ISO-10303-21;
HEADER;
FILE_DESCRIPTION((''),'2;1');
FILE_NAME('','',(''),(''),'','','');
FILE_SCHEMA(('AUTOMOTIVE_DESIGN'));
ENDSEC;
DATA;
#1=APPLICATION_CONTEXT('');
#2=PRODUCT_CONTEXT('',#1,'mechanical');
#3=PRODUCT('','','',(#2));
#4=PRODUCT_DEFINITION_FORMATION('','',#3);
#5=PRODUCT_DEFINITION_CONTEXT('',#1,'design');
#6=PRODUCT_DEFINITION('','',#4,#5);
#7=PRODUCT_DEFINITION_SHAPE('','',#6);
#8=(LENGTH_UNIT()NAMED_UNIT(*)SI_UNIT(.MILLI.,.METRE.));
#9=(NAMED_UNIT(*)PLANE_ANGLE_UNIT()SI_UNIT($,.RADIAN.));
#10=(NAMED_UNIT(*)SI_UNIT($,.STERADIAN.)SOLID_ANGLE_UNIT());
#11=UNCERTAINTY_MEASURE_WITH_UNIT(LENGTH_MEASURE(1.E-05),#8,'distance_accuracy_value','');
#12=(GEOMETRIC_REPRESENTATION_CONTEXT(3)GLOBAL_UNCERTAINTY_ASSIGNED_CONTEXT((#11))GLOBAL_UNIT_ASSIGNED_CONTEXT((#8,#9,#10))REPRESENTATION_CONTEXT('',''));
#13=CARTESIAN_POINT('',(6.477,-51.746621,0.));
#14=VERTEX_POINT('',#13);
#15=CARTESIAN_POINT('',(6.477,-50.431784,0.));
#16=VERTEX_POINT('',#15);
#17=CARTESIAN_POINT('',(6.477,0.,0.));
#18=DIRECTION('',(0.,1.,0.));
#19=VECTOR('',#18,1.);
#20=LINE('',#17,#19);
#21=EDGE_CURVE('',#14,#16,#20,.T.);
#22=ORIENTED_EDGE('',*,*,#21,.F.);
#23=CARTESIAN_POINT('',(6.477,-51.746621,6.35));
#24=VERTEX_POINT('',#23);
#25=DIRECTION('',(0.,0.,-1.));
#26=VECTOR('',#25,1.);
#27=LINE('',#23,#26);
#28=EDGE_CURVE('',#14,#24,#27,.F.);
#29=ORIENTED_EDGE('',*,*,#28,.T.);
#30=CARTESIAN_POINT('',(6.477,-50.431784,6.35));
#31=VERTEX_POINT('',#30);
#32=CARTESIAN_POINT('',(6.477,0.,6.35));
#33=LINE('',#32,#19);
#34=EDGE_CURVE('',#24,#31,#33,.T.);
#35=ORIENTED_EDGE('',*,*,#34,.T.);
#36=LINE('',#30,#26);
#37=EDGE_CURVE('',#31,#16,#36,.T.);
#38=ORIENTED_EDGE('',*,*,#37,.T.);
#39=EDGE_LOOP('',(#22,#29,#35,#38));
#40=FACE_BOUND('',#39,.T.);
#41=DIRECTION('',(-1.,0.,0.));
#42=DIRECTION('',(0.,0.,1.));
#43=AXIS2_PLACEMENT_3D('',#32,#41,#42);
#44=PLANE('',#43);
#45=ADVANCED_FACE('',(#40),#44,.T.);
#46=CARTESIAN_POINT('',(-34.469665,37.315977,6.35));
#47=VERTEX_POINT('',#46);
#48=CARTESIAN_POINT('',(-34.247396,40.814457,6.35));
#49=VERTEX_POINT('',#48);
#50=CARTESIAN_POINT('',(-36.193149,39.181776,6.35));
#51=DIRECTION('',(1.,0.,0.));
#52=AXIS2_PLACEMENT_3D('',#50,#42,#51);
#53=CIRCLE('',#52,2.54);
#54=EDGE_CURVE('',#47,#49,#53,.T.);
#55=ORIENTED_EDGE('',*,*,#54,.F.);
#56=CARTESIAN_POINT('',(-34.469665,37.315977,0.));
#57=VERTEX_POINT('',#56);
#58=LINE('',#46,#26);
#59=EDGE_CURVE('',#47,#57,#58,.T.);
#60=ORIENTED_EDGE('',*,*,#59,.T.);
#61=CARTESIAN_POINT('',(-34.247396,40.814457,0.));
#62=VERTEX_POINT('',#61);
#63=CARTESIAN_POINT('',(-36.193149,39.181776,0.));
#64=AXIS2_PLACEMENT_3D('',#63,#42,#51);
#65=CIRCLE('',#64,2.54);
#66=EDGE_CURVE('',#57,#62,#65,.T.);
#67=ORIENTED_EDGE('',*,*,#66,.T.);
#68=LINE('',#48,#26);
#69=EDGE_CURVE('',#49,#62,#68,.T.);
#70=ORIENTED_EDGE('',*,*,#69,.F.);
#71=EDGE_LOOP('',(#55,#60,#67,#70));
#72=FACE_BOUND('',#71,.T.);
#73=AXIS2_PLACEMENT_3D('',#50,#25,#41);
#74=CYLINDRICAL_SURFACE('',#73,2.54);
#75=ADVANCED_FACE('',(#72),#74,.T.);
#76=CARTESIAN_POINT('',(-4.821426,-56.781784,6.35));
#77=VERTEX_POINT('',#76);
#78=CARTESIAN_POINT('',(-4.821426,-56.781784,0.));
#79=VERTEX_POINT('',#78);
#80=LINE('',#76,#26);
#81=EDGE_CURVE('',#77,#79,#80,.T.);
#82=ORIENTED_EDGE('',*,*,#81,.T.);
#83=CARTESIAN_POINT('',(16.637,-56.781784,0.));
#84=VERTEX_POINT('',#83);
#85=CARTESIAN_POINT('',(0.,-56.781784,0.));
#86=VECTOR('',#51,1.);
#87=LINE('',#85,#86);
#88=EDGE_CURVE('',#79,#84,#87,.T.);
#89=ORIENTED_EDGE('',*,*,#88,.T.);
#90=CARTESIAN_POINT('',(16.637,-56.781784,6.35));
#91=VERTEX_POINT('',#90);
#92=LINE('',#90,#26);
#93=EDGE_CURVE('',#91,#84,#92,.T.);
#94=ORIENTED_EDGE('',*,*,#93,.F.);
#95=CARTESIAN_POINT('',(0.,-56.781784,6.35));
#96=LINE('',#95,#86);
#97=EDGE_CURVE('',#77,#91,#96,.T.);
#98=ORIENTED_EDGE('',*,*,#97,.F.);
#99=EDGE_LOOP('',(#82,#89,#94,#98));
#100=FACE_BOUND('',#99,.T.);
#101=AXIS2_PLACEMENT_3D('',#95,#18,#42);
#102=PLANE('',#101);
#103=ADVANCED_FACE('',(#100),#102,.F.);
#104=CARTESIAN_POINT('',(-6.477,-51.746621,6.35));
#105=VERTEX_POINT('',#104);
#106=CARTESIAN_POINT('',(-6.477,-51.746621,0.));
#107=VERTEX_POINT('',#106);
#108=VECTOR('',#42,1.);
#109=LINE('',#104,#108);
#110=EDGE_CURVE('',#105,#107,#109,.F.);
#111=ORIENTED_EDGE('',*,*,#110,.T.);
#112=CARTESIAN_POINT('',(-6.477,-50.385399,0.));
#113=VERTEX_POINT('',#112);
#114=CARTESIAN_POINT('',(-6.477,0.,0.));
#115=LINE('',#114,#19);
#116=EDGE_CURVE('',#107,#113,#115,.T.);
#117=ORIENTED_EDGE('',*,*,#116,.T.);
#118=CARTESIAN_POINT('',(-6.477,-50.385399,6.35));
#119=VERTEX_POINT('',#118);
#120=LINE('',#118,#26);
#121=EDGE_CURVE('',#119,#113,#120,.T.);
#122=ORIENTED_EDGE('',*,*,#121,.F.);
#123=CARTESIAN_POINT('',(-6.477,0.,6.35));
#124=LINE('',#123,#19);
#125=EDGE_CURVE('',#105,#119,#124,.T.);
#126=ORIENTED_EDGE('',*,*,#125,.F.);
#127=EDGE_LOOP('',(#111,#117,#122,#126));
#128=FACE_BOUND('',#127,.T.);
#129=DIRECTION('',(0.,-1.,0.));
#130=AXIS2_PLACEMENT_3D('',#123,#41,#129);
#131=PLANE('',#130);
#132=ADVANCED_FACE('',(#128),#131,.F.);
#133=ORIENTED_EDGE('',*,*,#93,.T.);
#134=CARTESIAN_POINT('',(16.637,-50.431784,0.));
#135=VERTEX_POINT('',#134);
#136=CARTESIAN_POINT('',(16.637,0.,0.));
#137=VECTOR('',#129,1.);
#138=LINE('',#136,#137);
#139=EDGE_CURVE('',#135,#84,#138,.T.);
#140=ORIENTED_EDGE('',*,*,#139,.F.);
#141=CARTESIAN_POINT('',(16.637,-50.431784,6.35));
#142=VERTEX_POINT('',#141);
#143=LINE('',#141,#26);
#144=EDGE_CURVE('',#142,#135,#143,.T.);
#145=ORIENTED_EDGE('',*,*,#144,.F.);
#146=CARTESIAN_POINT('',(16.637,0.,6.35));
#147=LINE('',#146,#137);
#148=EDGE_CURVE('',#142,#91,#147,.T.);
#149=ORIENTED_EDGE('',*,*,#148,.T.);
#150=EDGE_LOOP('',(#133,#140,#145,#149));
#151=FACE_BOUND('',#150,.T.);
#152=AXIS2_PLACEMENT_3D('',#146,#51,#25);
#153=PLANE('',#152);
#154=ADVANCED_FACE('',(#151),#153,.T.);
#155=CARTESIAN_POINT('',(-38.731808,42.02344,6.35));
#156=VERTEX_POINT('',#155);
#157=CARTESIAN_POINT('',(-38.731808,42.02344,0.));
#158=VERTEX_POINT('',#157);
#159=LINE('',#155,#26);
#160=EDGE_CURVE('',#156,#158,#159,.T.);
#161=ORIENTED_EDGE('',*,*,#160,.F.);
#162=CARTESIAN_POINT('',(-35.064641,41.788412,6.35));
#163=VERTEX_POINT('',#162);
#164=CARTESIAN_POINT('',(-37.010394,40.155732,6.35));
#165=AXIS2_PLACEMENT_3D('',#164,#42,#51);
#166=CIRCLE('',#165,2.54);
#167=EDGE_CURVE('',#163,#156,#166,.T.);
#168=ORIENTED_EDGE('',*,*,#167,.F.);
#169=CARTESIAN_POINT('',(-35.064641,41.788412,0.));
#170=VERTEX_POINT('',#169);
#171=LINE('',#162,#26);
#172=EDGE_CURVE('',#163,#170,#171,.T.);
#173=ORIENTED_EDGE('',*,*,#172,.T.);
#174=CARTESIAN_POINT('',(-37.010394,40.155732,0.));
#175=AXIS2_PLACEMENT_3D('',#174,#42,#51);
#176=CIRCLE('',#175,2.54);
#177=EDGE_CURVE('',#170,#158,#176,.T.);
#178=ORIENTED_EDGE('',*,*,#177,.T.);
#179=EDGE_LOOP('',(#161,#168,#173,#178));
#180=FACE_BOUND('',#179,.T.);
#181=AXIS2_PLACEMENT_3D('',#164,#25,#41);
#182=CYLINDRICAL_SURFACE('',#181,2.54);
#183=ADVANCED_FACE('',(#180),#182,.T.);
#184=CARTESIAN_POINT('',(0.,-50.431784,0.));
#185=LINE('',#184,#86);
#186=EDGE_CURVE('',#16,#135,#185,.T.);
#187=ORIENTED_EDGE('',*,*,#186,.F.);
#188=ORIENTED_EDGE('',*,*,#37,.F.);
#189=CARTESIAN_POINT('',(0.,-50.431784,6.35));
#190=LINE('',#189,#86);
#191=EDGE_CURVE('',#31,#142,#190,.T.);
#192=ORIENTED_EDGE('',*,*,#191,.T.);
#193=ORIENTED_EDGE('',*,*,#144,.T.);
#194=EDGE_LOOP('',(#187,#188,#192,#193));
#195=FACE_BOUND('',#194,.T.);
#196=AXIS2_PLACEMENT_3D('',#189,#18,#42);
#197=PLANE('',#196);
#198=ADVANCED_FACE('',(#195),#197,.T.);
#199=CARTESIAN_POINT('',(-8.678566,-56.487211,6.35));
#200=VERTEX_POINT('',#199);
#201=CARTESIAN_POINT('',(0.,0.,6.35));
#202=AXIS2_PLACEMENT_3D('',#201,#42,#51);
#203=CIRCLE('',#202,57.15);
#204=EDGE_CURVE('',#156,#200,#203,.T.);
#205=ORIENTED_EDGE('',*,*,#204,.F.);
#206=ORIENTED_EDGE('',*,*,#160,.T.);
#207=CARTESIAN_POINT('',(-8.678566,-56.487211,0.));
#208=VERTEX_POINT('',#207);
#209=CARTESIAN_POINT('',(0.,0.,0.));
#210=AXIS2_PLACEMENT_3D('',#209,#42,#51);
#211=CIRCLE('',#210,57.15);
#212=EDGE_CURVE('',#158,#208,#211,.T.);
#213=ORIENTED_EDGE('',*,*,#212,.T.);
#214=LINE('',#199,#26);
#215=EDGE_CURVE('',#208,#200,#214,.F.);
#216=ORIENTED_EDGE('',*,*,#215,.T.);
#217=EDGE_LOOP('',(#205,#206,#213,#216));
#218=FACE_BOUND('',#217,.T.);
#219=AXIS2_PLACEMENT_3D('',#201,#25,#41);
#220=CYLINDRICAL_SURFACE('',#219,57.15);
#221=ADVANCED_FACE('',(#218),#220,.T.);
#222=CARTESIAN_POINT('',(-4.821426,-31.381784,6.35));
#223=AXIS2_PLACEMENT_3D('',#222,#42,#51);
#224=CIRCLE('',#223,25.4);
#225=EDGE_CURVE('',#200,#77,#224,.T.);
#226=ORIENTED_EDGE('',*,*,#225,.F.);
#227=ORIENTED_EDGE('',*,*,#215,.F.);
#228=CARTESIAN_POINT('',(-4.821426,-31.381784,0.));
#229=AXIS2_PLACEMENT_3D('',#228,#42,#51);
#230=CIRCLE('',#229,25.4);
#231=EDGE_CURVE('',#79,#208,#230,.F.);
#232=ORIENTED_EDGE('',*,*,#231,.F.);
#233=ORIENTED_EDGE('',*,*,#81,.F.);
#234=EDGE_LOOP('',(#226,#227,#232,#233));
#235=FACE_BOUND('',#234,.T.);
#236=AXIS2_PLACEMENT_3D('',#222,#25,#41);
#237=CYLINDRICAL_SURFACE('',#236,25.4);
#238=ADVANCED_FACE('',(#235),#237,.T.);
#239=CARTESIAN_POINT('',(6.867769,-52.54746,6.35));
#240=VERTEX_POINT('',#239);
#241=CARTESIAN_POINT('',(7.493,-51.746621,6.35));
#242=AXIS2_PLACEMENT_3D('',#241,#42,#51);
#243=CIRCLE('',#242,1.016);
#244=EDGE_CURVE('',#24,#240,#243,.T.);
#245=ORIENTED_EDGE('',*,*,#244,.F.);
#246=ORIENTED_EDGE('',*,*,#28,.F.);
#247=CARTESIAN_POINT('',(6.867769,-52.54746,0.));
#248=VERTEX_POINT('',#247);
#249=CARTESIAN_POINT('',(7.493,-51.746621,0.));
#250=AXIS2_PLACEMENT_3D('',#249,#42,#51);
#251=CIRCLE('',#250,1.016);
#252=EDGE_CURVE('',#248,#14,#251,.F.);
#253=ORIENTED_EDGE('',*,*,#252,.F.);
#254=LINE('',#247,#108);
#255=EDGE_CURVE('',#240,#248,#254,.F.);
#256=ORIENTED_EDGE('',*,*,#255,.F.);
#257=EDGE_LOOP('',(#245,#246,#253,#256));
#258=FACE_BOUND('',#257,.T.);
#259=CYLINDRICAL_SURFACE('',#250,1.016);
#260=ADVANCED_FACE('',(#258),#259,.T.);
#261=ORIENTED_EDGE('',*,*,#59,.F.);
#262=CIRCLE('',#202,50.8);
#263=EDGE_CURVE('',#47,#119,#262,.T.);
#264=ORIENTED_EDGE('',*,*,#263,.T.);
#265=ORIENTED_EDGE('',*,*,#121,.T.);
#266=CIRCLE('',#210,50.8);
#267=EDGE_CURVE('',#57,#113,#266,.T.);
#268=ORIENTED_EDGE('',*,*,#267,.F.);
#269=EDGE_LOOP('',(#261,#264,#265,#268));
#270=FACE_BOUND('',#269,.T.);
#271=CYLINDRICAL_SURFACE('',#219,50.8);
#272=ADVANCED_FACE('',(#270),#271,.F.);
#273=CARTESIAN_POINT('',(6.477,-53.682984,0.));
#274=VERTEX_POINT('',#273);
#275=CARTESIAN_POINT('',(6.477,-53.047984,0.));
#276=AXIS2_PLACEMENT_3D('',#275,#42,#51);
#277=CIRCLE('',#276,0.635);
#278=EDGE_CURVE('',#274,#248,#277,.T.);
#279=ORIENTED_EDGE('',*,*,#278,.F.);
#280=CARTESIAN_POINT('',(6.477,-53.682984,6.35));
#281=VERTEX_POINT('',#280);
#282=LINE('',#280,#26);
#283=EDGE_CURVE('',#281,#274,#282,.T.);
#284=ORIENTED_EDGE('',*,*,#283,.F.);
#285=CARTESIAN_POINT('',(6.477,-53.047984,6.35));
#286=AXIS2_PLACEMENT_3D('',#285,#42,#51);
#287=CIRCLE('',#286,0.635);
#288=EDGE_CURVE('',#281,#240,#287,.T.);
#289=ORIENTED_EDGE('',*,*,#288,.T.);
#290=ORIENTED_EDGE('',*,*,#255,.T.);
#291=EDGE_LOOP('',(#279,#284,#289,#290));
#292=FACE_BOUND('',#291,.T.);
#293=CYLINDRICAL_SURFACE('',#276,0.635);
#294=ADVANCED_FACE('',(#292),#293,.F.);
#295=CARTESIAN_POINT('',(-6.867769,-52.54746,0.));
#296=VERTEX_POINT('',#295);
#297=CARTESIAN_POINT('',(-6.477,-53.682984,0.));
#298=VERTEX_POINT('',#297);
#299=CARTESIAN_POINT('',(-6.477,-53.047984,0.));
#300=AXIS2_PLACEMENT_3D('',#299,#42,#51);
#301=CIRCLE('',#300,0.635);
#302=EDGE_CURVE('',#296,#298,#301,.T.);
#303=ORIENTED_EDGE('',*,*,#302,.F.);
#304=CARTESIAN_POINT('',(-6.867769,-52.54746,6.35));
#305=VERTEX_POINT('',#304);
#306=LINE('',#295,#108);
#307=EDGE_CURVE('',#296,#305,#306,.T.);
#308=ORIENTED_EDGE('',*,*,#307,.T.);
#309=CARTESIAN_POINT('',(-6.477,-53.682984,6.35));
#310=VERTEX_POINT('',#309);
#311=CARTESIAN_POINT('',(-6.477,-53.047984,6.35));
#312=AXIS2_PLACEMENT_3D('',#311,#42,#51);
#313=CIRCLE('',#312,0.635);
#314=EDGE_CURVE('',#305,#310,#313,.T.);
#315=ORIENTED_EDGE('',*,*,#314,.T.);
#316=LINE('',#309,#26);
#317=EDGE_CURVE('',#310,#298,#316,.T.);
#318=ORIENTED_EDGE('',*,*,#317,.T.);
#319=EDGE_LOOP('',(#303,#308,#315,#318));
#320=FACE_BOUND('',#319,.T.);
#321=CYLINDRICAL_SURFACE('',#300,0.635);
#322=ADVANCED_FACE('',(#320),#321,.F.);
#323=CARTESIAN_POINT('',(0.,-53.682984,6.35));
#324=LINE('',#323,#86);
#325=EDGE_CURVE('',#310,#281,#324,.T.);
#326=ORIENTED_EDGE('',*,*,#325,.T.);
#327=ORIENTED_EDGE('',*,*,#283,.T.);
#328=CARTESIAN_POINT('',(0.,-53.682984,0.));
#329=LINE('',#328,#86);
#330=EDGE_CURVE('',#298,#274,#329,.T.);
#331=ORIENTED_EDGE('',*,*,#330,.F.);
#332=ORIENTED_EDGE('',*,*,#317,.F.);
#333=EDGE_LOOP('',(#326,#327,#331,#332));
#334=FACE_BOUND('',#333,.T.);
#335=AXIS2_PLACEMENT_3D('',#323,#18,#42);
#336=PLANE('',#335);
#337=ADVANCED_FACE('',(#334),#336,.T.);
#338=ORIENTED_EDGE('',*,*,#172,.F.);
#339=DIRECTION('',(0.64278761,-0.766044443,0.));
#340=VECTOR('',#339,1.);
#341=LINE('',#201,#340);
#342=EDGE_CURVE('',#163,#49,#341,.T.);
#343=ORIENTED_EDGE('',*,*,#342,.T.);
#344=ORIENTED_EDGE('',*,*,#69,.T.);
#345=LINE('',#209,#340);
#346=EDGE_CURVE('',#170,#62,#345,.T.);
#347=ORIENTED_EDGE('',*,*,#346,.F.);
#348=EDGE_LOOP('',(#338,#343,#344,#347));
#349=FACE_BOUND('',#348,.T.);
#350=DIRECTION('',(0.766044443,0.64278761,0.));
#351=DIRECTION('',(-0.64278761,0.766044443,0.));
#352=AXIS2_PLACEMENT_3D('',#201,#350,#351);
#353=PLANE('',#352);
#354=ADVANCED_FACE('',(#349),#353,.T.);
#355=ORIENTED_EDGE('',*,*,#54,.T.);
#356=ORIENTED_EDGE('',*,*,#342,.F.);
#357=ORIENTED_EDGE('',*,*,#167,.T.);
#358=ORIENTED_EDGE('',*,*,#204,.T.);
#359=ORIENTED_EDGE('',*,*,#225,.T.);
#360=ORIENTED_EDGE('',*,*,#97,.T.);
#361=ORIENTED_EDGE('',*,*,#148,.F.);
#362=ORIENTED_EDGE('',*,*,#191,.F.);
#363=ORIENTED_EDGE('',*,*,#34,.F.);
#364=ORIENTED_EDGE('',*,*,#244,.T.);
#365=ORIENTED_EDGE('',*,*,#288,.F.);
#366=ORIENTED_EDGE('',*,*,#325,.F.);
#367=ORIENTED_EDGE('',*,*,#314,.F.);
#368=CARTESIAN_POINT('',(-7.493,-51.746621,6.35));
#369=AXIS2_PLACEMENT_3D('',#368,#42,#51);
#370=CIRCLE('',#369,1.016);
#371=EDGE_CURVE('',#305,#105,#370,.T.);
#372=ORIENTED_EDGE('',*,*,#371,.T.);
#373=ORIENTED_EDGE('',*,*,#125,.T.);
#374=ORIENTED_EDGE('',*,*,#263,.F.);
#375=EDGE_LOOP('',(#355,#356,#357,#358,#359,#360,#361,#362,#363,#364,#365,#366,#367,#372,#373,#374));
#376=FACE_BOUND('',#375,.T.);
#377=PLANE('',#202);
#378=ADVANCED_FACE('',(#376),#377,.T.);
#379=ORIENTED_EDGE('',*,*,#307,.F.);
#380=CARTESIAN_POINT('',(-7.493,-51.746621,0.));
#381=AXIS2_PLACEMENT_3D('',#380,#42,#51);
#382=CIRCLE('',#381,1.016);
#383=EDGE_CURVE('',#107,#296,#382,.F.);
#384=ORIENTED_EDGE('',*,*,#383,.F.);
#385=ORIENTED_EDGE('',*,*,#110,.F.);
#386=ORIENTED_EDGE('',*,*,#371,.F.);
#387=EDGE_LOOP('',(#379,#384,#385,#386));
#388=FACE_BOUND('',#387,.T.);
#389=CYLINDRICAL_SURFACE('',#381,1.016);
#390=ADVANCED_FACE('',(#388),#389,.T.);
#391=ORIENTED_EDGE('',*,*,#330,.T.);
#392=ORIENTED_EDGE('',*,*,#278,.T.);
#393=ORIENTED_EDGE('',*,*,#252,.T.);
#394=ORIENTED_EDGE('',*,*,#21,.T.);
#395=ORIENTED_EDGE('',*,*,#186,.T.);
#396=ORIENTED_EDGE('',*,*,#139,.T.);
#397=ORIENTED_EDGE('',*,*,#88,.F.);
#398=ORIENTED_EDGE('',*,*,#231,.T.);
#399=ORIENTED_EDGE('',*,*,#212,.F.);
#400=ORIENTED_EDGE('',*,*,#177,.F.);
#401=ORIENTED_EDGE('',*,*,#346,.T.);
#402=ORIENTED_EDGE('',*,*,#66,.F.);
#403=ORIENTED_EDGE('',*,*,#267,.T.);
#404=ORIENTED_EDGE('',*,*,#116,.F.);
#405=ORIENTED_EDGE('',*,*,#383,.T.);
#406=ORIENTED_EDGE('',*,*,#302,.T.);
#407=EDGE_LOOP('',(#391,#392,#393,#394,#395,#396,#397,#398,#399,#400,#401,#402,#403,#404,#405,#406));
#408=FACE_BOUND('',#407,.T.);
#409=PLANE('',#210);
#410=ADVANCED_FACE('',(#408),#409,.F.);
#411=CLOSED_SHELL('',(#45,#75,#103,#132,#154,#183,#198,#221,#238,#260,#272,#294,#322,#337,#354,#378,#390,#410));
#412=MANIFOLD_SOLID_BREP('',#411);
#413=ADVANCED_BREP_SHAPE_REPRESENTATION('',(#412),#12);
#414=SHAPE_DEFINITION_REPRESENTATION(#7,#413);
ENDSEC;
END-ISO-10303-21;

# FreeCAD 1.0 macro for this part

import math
import FreeCAD as App
import Part
import Sketcher
from FreeCAD import Vector
Q = App.Units.Quantity


def edges_at(feature, points):
    """Names of the edges that pass closest to the given points."""
    edges = feature.Shape.Edges
    near = lambda p: min(range(len(edges)), key=lambda i: edges[i].distToShape(Part.Vertex(*p))[0])
    return sorted({f"Edge{near(p) + 1}" for p in points})

doc = App.newDocument("Part")
body = doc.addObject("PartDesign::Body", "Body")

# Sketch on XY plane
sketch1 = doc.addObject("Sketcher::SketchObject", "Sketch")
body.addObject(sketch1)
sketch1.AttachmentSupport = (doc.XY_Plane, [""])
sketch1.MapMode = "FlatFace"
sketch1.addGeometry(Part.ArcOfCircle(Part.Circle(Vector(0, 0, 0), Vector(0, 0, 1), 57.15), math.radians(132.665882), math.radians(263.492496)), False)
sketch1.addGeometry(Part.LineSegment(Vector(-6.477, -56.781784, 0), Vector(16.637, -56.781784, 0)), False)
sketch1.addGeometry(Part.LineSegment(Vector(16.637, -56.781784, 0), Vector(16.637, -50.431784, 0)), False)
sketch1.addGeometry(Part.LineSegment(Vector(16.637, -50.431784, 0), Vector(6.477, -50.431784, 0)), False)
sketch1.addGeometry(Part.LineSegment(Vector(6.477, -50.431784, 0), Vector(6.477, -53.682984, 0)), False)
sketch1.addGeometry(Part.LineSegment(Vector(6.477, -53.682984, 0), Vector(-6.477, -53.682984, 0)), False)
sketch1.addGeometry(Part.LineSegment(Vector(-6.477, -53.682984, 0), Vector(-6.477, -50.385399, 0)), False)
sketch1.addGeometry(Part.ArcOfCircle(Part.Circle(Vector(0, 0, 0), Vector(0, 0, 1), 50.8), math.radians(132.729403), math.radians(262.674849)), False)
sketch1.addGeometry(Part.ArcOfCircle(Part.Circle(Vector(-36.193149, 39.181776, 0), Vector(0, 0, 1), 2.54), math.radians(-47.270597), math.radians(40)), False)
sketch1.addGeometry(Part.LineSegment(Vector(-34.247396, 40.814457, 0), Vector(-35.064641, 41.788412, 0)), False)
sketch1.addGeometry(Part.ArcOfCircle(Part.Circle(Vector(-37.010394, 40.155732, 0), Vector(0, 0, 1), 2.54), math.radians(40), math.radians(132.665882)), False)
sketch1.addConstraint(Sketcher.Constraint("Coincident", 0, 2, 1, 1))
sketch1.addConstraint(Sketcher.Constraint("Coincident", 1, 2, 2, 1))
sketch1.addConstraint(Sketcher.Constraint("Coincident", 2, 2, 3, 1))
sketch1.addConstraint(Sketcher.Constraint("Coincident", 3, 2, 4, 1))
sketch1.addConstraint(Sketcher.Constraint("Coincident", 4, 2, 5, 1))
sketch1.addConstraint(Sketcher.Constraint("Coincident", 5, 2, 6, 1))
sketch1.addConstraint(Sketcher.Constraint("Coincident", 6, 2, 7, 2))
sketch1.addConstraint(Sketcher.Constraint("Tangent", 7, 1, 8, 1))
sketch1.addConstraint(Sketcher.Constraint("Tangent", 8, 2, 9, 1))
sketch1.addConstraint(Sketcher.Constraint("Tangent", 9, 2, 10, 1))
sketch1.addConstraint(Sketcher.Constraint("Tangent", 10, 2, 0, 1))
sketch1.addConstraint(Sketcher.Constraint("Horizontal", 1))
sketch1.addConstraint(Sketcher.Constraint("Vertical", 2))
sketch1.addConstraint(Sketcher.Constraint("Horizontal", 3))
sketch1.addConstraint(Sketcher.Constraint("Vertical", 4))
sketch1.addConstraint(Sketcher.Constraint("Horizontal", 5))
sketch1.addConstraint(Sketcher.Constraint("Vertical", 6))
sketch1.addConstraint(Sketcher.Constraint("Coincident", 0, 3, -1, 1))
sketch1.addConstraint(Sketcher.Constraint("Coincident", 7, 3, -1, 1))
sketch1.addConstraint(Sketcher.Constraint("Equal", 8, 10))
sketch1.addConstraint(Sketcher.Constraint("Vertical", 0, 2, 5, 2))
sketch1.addConstraint(Sketcher.Constraint("Radius", 7, Q("2 in")))
sketch1.addConstraint(Sketcher.Constraint("Radius", 8, Q("0.1 in")))
sketch1.addConstraint(Sketcher.Constraint("Radius", 0, Q("2.25 in")))
sketch1.addConstraint(Sketcher.Constraint("DistanceX", 3, 2, 3, 1, Q("0.4 in")))
sketch1.addConstraint(Sketcher.Constraint("Angle", 9, Q("130 deg")))
sketch1.addConstraint(Sketcher.Constraint("DistanceX", 1, 1, 1, 2, Q("0.91 in")))
sketch1.addConstraint(Sketcher.Constraint("DistanceY", 2, 1, 2, 2, Q("0.25 in")))
sketch1.addConstraint(Sketcher.Constraint("DistanceY", 4, 2, 4, 1, Q("0.128 in")))
sketch1.addConstraint(Sketcher.Constraint("DistanceX", 0, 2, -1, 1, Q("0.255 in")))
sketch1.addConstraint(Sketcher.Constraint("DistanceX", 8, 3, -1, 1, 36.193149))
pad1 = doc.addObject("PartDesign::Pad", "Pad")
body.addObject(pad1)
pad1.Profile = sketch1
pad1.Length = Q("0.25 in")

# Sketch on XY plane
sketch2 = doc.addObject("Sketcher::SketchObject", "Sketch001")
body.addObject(sketch2)
sketch2.AttachmentSupport = (doc.XY_Plane, [""])
sketch2.MapMode = "FlatFace"
sketch2.AttachmentOffset = App.Placement(Vector(0, 0, 0.25 * 25.4), App.Rotation())
sketch2.addGeometry(Part.Circle(Vector(-6.477, -53.047984, 0), Vector(0, 0, 1), 0.635), False)
sketch2.addGeometry(Part.Circle(Vector(6.477, -53.047984, 0), Vector(0, 0, 1), 0.635), False)
sketch2.addConstraint(Sketcher.Constraint("Equal", 0, 1))
sketch2.addConstraint(Sketcher.Constraint("Symmetric", 0, 3, 1, 3, -2))
sketch2.addConstraint(Sketcher.Constraint("Diameter", 0, Q("0.05 in")))
sketch2.addConstraint(Sketcher.Constraint("DistanceX", 0, 3, 1, 3, Q("0.51 in")))
sketch2.addConstraint(Sketcher.Constraint("DistanceY", 0, 3, -1, 1, 53.047984))
pocket1 = doc.addObject("PartDesign::Pocket", "Pocket")
body.addObject(pocket1)
pocket1.Profile = sketch2
pocket1.Type = "ThroughAll"
doc.recompute()

fillet = doc.addObject("PartDesign::Fillet", "Fillet")
body.addObject(fillet)
fillet.Base = (pocket1, edges_at(pocket1, [(-6.477, -52.413, 3.175), (6.477, -52.413, 3.175)]))
fillet.Radius = Q("0.04 in")
doc.recompute()

fillet2 = doc.addObject("PartDesign::Fillet", "Fillet001")
body.addObject(fillet2)
fillet2.Base = (fillet, edges_at(fillet, [(-6.477, -56.782, 3.175)]))
fillet2.Radius = Q("1 in")

doc.recompute()
